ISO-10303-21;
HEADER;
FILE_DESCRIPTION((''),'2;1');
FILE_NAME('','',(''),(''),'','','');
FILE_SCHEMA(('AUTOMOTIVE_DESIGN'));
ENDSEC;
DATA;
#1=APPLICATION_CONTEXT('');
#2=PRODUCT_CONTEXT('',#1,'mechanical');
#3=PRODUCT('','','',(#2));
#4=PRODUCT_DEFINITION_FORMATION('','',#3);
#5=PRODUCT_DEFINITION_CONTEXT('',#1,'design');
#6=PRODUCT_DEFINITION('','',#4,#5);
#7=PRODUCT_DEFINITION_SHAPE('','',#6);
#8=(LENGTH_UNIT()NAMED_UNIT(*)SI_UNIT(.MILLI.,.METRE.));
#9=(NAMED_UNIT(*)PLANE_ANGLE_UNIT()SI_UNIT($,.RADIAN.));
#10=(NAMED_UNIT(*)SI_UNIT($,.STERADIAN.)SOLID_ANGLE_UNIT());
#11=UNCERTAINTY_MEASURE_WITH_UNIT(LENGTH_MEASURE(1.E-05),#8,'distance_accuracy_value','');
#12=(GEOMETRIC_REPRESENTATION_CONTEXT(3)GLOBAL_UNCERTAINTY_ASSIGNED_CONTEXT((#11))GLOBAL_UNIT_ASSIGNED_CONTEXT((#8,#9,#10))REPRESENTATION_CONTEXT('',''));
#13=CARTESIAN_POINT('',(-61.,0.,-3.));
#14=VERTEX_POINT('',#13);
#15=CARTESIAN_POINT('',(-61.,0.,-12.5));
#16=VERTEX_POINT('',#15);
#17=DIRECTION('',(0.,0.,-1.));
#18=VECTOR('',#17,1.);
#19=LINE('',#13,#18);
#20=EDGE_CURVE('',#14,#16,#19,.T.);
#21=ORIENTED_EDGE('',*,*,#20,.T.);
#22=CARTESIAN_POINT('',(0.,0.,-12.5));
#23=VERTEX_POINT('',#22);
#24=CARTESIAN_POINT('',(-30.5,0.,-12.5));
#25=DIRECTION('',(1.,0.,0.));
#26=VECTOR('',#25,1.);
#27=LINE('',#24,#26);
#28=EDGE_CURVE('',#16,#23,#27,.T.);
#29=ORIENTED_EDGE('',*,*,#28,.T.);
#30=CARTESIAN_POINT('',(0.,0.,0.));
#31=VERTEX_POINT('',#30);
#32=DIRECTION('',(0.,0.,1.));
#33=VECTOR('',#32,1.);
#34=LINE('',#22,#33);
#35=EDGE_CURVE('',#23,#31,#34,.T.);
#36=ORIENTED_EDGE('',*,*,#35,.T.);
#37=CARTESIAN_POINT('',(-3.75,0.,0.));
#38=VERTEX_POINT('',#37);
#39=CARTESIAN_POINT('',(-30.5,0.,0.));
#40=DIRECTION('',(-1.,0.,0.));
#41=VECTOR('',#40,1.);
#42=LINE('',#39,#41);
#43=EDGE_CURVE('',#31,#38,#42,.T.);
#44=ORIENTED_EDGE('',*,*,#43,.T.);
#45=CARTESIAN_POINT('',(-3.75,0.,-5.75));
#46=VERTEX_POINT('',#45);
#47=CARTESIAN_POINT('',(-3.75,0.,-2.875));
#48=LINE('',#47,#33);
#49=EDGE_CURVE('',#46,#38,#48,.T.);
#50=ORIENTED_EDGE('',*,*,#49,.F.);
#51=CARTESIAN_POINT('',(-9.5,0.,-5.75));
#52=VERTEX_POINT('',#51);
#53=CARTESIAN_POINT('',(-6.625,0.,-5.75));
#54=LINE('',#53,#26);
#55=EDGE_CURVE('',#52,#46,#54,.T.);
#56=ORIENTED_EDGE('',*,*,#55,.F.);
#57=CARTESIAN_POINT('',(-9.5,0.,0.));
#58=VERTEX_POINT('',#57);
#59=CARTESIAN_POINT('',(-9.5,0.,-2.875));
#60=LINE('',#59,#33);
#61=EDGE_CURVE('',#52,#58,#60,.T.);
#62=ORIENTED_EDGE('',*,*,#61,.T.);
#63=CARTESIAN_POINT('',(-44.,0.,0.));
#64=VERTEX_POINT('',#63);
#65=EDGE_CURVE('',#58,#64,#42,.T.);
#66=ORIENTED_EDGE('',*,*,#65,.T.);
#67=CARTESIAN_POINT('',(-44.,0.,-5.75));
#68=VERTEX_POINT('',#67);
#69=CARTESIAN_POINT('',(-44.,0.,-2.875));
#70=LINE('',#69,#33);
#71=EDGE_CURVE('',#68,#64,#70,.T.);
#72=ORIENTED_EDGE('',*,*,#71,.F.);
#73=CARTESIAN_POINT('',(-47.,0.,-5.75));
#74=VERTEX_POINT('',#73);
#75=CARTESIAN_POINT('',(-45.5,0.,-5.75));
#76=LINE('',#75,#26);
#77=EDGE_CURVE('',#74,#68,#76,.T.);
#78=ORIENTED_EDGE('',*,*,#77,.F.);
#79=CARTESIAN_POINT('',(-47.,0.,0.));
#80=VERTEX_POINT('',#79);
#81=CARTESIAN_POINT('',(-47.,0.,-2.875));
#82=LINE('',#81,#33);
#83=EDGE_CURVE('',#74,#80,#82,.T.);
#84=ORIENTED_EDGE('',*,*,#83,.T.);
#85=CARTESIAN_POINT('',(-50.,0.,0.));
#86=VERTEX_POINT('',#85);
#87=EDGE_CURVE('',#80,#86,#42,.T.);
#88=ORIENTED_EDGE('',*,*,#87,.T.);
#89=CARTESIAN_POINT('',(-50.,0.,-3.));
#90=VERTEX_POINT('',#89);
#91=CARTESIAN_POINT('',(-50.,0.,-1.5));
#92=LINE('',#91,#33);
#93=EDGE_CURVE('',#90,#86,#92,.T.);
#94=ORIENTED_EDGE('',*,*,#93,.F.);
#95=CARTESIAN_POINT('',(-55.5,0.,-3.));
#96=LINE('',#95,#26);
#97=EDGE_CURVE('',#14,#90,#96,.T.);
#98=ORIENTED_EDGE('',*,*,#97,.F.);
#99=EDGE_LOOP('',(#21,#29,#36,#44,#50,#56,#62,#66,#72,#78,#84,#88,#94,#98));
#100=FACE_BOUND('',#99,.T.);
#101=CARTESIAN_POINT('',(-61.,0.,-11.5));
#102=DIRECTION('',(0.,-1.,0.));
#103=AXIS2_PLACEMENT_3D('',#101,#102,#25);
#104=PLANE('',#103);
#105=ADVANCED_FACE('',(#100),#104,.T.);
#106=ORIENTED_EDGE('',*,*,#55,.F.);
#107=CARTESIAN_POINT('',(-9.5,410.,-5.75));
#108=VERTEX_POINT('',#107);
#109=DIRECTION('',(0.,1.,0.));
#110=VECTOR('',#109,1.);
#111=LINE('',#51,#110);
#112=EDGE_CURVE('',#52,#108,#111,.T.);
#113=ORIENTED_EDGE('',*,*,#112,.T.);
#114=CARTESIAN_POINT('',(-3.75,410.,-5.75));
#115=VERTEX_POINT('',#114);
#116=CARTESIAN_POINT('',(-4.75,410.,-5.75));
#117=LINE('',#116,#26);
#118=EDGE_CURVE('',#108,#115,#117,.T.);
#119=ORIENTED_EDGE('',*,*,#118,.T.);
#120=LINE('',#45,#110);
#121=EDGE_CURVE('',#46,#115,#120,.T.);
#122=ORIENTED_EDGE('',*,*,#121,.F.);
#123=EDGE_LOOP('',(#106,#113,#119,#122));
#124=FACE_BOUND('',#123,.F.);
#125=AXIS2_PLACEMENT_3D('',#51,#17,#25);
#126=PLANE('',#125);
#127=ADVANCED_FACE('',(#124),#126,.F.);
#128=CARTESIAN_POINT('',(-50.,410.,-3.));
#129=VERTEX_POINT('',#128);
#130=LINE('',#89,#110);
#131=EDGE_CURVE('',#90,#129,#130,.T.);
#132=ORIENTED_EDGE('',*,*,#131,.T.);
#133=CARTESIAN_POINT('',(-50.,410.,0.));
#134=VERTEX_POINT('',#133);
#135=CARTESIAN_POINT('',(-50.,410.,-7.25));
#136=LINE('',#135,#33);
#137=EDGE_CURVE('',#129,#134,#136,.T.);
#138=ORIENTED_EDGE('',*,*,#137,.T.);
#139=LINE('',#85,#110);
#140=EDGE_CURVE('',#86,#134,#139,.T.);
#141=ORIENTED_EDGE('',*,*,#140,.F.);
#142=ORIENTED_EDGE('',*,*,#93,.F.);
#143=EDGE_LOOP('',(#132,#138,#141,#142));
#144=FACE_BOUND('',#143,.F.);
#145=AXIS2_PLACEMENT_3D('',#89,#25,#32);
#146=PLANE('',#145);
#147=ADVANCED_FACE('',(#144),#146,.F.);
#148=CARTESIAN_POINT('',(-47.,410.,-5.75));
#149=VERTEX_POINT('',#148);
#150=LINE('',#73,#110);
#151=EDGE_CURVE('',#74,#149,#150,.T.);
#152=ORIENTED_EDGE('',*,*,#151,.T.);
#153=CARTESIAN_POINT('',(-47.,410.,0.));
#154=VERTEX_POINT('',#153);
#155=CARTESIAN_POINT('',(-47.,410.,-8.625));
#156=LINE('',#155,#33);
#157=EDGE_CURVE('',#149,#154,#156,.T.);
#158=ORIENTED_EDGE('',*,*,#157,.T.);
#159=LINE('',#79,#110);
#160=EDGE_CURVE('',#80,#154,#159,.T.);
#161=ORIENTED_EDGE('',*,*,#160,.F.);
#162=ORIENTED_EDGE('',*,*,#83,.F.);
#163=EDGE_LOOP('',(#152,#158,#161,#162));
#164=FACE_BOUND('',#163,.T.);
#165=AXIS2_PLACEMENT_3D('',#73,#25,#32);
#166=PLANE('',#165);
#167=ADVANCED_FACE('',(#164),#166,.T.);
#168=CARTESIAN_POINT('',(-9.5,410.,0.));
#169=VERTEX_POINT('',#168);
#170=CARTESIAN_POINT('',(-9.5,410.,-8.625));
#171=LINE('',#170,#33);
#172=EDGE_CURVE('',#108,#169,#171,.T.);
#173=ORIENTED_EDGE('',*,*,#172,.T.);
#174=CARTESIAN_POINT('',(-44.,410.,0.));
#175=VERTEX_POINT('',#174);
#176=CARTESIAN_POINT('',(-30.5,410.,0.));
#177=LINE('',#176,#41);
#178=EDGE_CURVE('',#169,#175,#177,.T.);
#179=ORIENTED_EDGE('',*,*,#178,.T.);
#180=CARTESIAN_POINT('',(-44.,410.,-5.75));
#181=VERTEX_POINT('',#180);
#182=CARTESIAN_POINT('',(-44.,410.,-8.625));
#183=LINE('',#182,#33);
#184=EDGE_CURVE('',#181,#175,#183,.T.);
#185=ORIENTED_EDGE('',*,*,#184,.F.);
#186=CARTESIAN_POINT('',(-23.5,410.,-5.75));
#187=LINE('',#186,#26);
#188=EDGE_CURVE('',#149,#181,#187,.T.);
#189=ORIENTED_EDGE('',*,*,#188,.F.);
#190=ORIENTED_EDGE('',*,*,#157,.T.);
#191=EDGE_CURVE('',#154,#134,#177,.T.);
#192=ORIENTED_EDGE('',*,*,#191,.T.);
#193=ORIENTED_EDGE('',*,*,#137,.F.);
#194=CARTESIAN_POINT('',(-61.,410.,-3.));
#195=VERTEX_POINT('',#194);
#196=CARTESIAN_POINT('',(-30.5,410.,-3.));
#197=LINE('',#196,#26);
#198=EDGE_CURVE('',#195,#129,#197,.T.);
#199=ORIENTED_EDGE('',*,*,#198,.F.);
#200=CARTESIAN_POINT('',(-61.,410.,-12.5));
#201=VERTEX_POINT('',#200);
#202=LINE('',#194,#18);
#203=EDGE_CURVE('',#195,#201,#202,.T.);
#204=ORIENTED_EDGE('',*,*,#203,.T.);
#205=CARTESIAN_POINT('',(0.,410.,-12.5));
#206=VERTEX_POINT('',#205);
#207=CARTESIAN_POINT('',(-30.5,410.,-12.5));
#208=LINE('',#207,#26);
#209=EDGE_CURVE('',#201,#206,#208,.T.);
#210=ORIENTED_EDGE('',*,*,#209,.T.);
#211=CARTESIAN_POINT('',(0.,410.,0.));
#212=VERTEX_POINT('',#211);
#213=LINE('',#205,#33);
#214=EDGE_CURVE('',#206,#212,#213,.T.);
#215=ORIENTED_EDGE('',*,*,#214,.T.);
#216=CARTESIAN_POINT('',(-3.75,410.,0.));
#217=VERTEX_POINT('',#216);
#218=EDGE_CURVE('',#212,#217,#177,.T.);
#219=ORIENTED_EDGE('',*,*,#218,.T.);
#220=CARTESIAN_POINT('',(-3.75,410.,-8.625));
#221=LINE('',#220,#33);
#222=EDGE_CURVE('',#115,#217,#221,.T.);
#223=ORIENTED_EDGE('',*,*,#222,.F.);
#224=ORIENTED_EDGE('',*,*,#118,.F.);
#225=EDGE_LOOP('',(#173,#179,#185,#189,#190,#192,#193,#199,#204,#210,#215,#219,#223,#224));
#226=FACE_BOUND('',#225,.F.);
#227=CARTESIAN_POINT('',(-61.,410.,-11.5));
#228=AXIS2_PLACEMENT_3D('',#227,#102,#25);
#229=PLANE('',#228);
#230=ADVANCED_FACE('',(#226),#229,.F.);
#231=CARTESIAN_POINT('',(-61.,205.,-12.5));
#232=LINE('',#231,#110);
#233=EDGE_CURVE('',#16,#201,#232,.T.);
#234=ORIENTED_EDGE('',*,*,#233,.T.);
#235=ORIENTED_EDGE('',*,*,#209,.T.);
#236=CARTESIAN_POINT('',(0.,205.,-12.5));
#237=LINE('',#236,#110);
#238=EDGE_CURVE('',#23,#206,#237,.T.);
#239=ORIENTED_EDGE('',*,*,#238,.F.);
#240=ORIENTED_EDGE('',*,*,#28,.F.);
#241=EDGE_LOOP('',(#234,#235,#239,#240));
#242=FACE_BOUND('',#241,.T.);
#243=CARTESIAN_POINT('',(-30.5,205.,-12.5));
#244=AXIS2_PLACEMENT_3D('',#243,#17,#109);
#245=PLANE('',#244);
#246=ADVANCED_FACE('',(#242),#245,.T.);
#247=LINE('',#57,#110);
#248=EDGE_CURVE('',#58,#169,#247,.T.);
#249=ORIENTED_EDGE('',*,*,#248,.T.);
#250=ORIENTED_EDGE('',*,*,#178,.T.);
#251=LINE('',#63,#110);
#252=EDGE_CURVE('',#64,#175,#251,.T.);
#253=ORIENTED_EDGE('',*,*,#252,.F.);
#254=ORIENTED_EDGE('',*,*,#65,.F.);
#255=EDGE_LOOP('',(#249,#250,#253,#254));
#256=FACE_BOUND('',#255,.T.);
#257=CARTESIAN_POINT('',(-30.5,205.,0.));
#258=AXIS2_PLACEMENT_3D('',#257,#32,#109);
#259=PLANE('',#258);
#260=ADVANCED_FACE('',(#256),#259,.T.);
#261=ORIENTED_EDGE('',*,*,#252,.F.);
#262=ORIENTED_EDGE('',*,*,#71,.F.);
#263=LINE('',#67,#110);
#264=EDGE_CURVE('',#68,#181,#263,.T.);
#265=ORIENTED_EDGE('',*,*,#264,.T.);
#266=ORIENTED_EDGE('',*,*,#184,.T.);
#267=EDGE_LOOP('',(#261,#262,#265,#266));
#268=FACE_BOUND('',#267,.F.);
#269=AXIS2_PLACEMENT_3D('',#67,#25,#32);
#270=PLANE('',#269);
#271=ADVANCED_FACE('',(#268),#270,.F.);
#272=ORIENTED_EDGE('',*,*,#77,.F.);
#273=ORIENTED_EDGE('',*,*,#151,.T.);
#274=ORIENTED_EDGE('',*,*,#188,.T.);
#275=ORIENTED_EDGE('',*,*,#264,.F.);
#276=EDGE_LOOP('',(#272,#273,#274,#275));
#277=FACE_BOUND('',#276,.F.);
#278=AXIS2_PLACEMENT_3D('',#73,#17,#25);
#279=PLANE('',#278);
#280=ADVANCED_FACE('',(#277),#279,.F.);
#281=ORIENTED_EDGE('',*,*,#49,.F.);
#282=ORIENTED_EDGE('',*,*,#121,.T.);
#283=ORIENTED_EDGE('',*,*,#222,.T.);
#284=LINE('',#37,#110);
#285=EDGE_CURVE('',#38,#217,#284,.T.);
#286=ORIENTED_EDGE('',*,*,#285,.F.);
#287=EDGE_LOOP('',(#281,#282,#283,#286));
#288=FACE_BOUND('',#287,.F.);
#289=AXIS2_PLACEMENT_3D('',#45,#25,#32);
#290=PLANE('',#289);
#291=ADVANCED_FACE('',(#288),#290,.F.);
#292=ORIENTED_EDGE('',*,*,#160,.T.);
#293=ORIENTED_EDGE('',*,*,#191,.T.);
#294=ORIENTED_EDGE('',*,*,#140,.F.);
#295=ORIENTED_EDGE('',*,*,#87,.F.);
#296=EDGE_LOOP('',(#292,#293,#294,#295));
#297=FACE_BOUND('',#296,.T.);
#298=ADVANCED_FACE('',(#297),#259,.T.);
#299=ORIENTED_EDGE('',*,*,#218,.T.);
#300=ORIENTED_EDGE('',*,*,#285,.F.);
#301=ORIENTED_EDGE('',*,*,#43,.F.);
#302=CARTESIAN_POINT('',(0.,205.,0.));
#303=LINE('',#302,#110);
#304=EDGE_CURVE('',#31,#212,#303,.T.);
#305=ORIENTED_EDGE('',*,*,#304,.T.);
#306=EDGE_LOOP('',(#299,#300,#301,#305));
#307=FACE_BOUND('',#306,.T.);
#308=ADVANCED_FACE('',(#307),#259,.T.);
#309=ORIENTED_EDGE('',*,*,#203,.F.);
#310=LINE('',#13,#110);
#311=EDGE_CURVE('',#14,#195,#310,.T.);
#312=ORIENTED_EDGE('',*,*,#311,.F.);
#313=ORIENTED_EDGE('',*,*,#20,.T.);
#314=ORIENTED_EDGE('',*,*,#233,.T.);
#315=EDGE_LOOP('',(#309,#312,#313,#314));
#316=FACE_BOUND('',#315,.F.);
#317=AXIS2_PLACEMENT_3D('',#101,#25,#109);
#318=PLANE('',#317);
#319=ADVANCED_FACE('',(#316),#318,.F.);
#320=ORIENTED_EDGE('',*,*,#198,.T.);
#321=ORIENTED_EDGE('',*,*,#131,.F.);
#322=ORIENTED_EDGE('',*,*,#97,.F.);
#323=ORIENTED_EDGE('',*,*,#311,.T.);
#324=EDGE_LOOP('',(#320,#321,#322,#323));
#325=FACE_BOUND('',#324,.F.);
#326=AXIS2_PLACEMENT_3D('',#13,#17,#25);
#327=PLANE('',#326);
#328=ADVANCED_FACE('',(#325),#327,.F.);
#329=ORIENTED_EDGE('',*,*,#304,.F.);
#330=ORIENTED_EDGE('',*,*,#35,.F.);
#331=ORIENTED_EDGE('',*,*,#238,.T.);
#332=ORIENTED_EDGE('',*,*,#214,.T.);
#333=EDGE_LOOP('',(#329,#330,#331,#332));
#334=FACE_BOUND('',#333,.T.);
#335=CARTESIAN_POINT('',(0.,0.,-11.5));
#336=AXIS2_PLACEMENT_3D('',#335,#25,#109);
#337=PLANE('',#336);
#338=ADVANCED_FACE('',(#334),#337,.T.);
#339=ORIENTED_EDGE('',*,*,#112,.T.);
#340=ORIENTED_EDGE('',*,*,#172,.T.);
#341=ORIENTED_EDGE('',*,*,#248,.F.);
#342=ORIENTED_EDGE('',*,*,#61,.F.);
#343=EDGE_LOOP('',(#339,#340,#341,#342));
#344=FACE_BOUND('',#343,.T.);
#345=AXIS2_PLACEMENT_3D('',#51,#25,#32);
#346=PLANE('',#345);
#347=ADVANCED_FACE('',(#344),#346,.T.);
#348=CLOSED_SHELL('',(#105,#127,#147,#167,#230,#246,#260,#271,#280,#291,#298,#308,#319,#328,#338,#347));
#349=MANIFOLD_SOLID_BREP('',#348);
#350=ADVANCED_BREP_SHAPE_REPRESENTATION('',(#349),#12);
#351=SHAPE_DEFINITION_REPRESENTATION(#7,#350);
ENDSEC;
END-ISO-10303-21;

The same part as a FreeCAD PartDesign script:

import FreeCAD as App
import Part
import Sketcher
Q = App.Units.Quantity

doc = App.newDocument("Part")
body = doc.addObject("PartDesign::Body", "Body")

# Sketch on XY plane
sketch1 = body.newObject("Sketcher::SketchObject", "Sketch")
sketch1.AttachmentSupport = (doc.getObject("XY_Plane"), [""])
sketch1.MapMode = "FlatFace"
sketch1.addGeometry([
    Part.LineSegment(App.Vector(0, 61, 0), App.Vector(0, 0, 0)),
    Part.LineSegment(App.Vector(0, 0, 0), App.Vector(410, 0, 0)),
    Part.LineSegment(App.Vector(410, 0, 0), App.Vector(410, 61, 0)),
    Part.LineSegment(App.Vector(410, 61, 0), App.Vector(0, 61, 0)),
], False)
sketch1.addConstraint([
    Sketcher.Constraint("Coincident", 0, 2, 1, 1),
    Sketcher.Constraint("Coincident", 1, 2, 2, 1),
    Sketcher.Constraint("Coincident", 2, 2, 3, 1),
    Sketcher.Constraint("Coincident", 3, 2, 0, 1),
    Sketcher.Constraint("Vertical", 0),
    Sketcher.Constraint("Horizontal", 1),
    Sketcher.Constraint("Vertical", 2),
    Sketcher.Constraint("Horizontal", 3),
    Sketcher.Constraint("Coincident", 0, 2, -1, 1),
    Sketcher.Constraint("DistanceX", 1, 1, 1, 2, Q("410 mm")),
    Sketcher.Constraint("DistanceY", 0, 2, 0, 1, Q("61 mm")),
])
pad1 = body.newObject("PartDesign::Pad", "Pad")
pad1.Profile = sketch1
pad1.Length = 11.5

# Sketch on YZ plane
sketch2 = body.newObject("Sketcher::SketchObject", "Sketch001")
sketch2.AttachmentSupport = (doc.getObject("YZ_Plane"), [""])
sketch2.MapMode = "FlatFace"
sketch2.addGeometry([
    Part.LineSegment(App.Vector(61, 11.5, 0), App.Vector(61, 8.5, 0)),
    Part.LineSegment(App.Vector(61, 8.5, 0), App.Vector(50, 8.5, 0)),
    Part.LineSegment(App.Vector(50, 8.5, 0), App.Vector(50, 11.5, 0)),
    Part.LineSegment(App.Vector(50, 11.5, 0), App.Vector(61, 11.5, 0)),
], False)
sketch2.addConstraint([
    Sketcher.Constraint("Coincident", 0, 2, 1, 1),
    Sketcher.Constraint("Coincident", 1, 2, 2, 1),
    Sketcher.Constraint("Coincident", 2, 2, 3, 1),
    Sketcher.Constraint("Coincident", 3, 2, 0, 1),
    Sketcher.Constraint("Vertical", 0),
    Sketcher.Constraint("Horizontal", 1),
    Sketcher.Constraint("Vertical", 2),
    Sketcher.Constraint("Horizontal", 3),
    Sketcher.Constraint("DistanceX", 1, 2, 1, 1, Q("11 mm")),
    Sketcher.Constraint("DistanceY", 0, 2, 0, 1, Q("3 mm")),
    Sketcher.Constraint("DistanceX", -1, 1, 0, 2, Q("61 mm")),
    Sketcher.Constraint("DistanceY", -1, 1, 0, 2, Q("8.5 mm")),
])
pocket1 = body.newObject("PartDesign::Pocket", "Pocket")
pocket1.Profile = sketch2
pocket1.Type = "ThroughAll"
pocket1.Reversed = True

# Sketch on YZ plane
sketch3 = body.newObject("Sketcher::SketchObject", "Sketch002")
sketch3.AttachmentSupport = (doc.getObject("YZ_Plane"), [""])
sketch3.MapMode = "FlatFace"
sketch3.addGeometry([
    Part.LineSegment(App.Vector(10, 12, 0), App.Vector(10, 6, 0)),
    Part.LineSegment(App.Vector(10, 6, 0), App.Vector(4, 6, 0)),
    Part.LineSegment(App.Vector(4, 6, 0), App.Vector(4, 12, 0)),
    Part.LineSegment(App.Vector(4, 12, 0), App.Vector(10, 12, 0)),
], False)
sketch3.addConstraint([
    Sketcher.Constraint("Coincident", 0, 2, 1, 1),
    Sketcher.Constraint("Coincident", 1, 2, 2, 1),
    Sketcher.Constraint("Coincident", 2, 2, 3, 1),
    Sketcher.Constraint("Coincident", 3, 2, 0, 1),
    Sketcher.Constraint("Vertical", 0),
    Sketcher.Constraint("Horizontal", 1),
    Sketcher.Constraint("Vertical", 2),
    Sketcher.Constraint("Horizontal", 3),
    Sketcher.Constraint("Equal", 3, 0),
    Sketcher.Constraint("DistanceX", 1, 2, 1, 1, Q("5.75 mm")),
    Sketcher.Constraint("DistanceX", -1, 1, 0, 2, Q("9.5 mm")),
    Sketcher.Constraint("DistanceY", -1, 1, 2, 2, Q("11.5 mm")),
])
pocket2 = body.newObject("PartDesign::Pocket", "Pocket001")
pocket2.Profile = sketch3
pocket2.Type = "ThroughAll"
pocket2.Reversed = True

# Sketch on YZ plane
sketch4 = body.newObject("Sketcher::SketchObject", "Sketch003")
sketch4.AttachmentSupport = (doc.getObject("YZ_Plane"), [""])
sketch4.MapMode = "FlatFace"
sketch4.addGeometry([
    Part.LineSegment(App.Vector(47, 11.5, 0), App.Vector(47, 5.8, 0)),
    Part.LineSegment(App.Vector(47, 5.8, 0), App.Vector(44, 5.8, 0)),
    Part.LineSegment(App.Vector(44, 5.8, 0), App.Vector(44, 11.5, 0)),
    Part.LineSegment(App.Vector(44, 11.5, 0), App.Vector(47, 11.5, 0)),
], False)
sketch4.addConstraint([
    Sketcher.Constraint("Coincident", 0, 2, 1, 1),
    Sketcher.Constraint("Coincident", 1, 2, 2, 1),
    Sketcher.Constraint("Coincident", 2, 2, 3, 1),
    Sketcher.Constraint("Coincident", 3, 2, 0, 1),
    Sketcher.Constraint("Vertical", 0),
    Sketcher.Constraint("Horizontal", 1),
    Sketcher.Constraint("Vertical", 2),
    Sketcher.Constraint("Horizontal", 3),
    Sketcher.Constraint("DistanceX", 1, 2, 1, 1, Q("3 mm")),
    Sketcher.Constraint("DistanceX", -1, 1, 0, 2, Q("47 mm")),
    Sketcher.Constraint("DistanceY", 0, 2, 0, 1, Q("5.75 mm")),
    Sketcher.Constraint("DistanceY", -1, 1, 2, 2, Q("11.5 mm")),
])
pocket3 = body.newObject("PartDesign::Pocket", "Pocket002")
pocket3.Profile = sketch4
pocket3.Type = "ThroughAll"
pocket3.Reversed = True

# Sketch on XY plane
sketch5 = body.newObject("Sketcher::SketchObject", "Sketch004")
sketch5.AttachmentSupport = (doc.getObject("XY_Plane"), [""])
sketch5.MapMode = "FlatFace"
sketch5.addGeometry([
    Part.LineSegment(App.Vector(0, 0, 0), App.Vector(0, 61, 0)),
    Part.LineSegment(App.Vector(0, 61, 0), App.Vector(410, 61, 0)),
    Part.LineSegment(App.Vector(410, 61, 0), App.Vector(410, 0, 0)),
    Part.LineSegment(App.Vector(410, 0, 0), App.Vector(0, 0, 0)),
], False)
sketch5.addConstraint([
    Sketcher.Constraint("Coincident", 0, 2, 1, 1),
    Sketcher.Constraint("Coincident", 1, 2, 2, 1),
    Sketcher.Constraint("Coincident", 2, 2, 3, 1),
    Sketcher.Constraint("Coincident", 3, 2, 0, 1),
    Sketcher.Constraint("Vertical", 0),
    Sketcher.Constraint("Horizontal", 1),
    Sketcher.Constraint("Vertical", 2),
    Sketcher.Constraint("Horizontal", 3),
    Sketcher.Constraint("Coincident", 3, 2, -1, 1),
    Sketcher.Constraint("DistanceX", 1, 1, 1, 2, Q("410 mm")),
    Sketcher.Constraint("DistanceY", 0, 1, 0, 2, Q("61 mm")),
])
pad2 = body.newObject("PartDesign::Pad", "Pad001")
pad2.Profile = sketch5
pad2.Length = 1
pad2.Reversed = True
body2 = doc.addObject("PartDesign::Body", "Body001")
doc.recompute()

body.Placement = App.Placement(App.Vector(0, 0, -11.5), App.Rotation(App.Vector(0, 0, 1), 90))
boolean = body2.newObject("PartDesign::Boolean", "Boolean")
boolean.Type = "Fuse"
boolean.addObjects([body])

doc.recompute()
